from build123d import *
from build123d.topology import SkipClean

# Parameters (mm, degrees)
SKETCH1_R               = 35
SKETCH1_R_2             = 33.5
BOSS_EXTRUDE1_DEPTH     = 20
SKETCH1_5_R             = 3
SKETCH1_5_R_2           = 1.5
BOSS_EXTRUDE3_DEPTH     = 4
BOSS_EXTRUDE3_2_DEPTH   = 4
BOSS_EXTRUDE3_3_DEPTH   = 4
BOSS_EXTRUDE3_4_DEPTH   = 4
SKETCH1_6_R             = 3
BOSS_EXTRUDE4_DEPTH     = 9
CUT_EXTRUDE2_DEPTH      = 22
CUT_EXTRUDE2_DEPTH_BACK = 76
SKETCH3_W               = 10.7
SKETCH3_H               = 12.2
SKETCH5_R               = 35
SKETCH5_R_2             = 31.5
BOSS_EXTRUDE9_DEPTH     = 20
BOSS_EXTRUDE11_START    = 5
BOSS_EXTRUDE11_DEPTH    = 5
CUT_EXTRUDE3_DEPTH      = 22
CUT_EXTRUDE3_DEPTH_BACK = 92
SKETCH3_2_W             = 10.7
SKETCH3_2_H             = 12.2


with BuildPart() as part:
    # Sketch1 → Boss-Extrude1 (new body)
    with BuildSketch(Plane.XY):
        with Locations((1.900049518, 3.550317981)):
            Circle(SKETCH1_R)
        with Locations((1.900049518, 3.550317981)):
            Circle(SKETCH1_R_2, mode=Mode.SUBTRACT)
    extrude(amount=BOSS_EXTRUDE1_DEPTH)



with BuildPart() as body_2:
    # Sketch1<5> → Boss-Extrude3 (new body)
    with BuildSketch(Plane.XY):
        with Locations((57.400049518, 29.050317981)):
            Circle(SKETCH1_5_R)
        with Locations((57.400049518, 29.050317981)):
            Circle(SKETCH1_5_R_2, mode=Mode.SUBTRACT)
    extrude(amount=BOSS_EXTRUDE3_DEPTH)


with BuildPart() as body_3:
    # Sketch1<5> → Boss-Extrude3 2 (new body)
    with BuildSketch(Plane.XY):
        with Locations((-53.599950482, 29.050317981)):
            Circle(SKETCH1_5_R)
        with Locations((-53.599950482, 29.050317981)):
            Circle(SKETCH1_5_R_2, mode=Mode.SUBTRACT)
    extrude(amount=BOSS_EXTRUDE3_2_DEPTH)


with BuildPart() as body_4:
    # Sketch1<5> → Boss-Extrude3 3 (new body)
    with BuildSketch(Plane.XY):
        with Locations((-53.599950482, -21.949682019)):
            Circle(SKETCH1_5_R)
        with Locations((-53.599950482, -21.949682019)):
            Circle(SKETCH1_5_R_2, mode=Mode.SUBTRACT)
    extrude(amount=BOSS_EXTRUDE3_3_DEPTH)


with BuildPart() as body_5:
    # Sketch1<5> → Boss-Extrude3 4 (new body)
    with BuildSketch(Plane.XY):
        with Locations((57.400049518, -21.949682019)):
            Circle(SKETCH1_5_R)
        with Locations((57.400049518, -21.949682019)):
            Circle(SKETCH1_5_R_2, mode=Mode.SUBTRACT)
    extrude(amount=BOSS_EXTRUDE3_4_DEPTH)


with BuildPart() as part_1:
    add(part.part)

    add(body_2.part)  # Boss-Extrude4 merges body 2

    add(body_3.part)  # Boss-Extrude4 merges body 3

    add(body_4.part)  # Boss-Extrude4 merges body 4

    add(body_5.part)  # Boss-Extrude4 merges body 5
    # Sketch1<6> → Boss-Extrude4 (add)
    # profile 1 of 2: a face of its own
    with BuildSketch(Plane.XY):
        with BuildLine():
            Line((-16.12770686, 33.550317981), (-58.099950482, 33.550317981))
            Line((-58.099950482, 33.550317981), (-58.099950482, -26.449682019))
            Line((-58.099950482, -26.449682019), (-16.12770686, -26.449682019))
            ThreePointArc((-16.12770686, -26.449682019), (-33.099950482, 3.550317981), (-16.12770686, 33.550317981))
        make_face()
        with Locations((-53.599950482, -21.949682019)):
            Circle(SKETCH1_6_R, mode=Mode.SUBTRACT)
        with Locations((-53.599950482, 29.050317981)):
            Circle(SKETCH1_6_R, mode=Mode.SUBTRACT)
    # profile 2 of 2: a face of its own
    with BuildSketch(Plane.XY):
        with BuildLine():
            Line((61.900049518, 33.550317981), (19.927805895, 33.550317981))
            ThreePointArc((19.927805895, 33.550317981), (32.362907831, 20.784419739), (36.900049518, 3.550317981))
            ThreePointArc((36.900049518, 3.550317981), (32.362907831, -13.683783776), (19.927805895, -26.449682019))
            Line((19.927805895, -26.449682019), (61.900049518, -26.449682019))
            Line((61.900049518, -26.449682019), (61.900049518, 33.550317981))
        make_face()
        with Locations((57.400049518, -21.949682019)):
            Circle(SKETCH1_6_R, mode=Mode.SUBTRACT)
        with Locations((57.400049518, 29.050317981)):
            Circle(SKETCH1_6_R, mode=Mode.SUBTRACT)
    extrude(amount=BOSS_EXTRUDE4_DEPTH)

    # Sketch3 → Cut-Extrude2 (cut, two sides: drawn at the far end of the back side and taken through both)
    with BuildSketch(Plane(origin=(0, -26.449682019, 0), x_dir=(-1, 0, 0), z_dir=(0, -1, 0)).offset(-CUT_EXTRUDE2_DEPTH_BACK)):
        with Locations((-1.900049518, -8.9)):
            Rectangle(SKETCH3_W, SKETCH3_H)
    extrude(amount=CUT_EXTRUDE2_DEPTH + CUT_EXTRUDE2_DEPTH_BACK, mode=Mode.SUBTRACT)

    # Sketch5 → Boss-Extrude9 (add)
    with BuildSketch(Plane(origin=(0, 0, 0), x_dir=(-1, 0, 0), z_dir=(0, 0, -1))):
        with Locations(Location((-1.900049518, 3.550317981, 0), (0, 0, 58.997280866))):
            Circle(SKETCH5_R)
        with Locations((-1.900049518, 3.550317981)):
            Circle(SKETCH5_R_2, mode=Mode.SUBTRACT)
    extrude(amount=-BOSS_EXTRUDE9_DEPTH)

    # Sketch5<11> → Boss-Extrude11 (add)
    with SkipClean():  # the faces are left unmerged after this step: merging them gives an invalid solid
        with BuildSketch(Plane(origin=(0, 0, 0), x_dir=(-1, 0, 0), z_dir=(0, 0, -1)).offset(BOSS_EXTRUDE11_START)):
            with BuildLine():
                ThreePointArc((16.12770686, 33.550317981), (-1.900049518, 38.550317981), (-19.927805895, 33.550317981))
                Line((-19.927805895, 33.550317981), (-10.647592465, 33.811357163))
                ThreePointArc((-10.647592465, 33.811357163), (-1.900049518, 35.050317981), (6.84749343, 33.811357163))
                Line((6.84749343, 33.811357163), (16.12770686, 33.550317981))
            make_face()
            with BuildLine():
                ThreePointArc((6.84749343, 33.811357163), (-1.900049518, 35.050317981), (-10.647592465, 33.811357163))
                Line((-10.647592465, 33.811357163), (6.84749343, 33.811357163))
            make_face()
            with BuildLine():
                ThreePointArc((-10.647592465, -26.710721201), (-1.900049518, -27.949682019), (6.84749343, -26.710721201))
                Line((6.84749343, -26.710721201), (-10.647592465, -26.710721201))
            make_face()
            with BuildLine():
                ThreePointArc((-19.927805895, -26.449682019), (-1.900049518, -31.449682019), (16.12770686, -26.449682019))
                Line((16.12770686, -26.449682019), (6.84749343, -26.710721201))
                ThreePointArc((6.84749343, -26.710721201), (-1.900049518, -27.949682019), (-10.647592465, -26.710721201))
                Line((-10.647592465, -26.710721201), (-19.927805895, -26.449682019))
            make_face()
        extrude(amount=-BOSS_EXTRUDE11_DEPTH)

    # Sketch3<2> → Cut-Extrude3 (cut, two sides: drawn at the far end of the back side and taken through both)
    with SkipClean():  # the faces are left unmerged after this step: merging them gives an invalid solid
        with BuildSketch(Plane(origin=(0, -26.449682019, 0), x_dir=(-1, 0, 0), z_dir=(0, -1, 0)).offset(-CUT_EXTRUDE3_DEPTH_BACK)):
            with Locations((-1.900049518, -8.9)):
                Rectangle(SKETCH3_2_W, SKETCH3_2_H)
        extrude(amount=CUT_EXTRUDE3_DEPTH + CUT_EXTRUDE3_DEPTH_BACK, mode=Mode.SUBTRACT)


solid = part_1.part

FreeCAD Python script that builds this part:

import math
import FreeCAD as App
import Part
import Sketcher

V = App.Vector


def add_polygon(sketch, points):
    """Adds a closed chain of lines whose ends are joined by coincident constraints."""
    first, n = sketch.GeometryCount, len(points)
    for a, b in zip(points, points[1:] + points[:1]):
        sketch.addGeometry(Part.LineSegment(App.Vector(*a, 0), App.Vector(*b, 0)), False)
    for i in range(n):
        sketch.addConstraint(Sketcher.Constraint("Coincident", first + i, 2, first + (i + 1) % n, 1))

doc = App.newDocument("Part")
params = doc.addObject("Spreadsheet::Sheet", "Params")
for row, (alias, value) in enumerate([
    ("sketch1_diameter", "70 mm"),
    ("sketch1_diameter2", "67 mm"),
    ("pad1_length", "20 mm"),
    ("sketch2_diameter", "6 mm"),
    ("sketch2_diameter2", "3 mm"),
    ("pad2_length", "4 mm"),
    ("sketch3_diameter", "6 mm"),
    ("sketch3_diameter2", "3 mm"),
    ("pad3_length", "4 mm"),
    ("sketch4_diameter", "6 mm"),
    ("sketch4_diameter2", "3 mm"),
    ("pad4_length", "4 mm"),
    ("sketch5_diameter", "6 mm"),
    ("sketch5_diameter2", "3 mm"),
    ("pad5_length", "4 mm"),
    ("sketch6_diameter", "6 mm"),
    ("sketch6_radius", "35 mm"),
    ("sketch6_height", "60 mm"),
    ("pad6_length", "9 mm"),
    ("sketch7_width", "10.7 mm"),
    ("sketch7_height", "12.2 mm"),
    ("sketch8_diameter", "70 mm"),
    ("sketch8_diameter2", "63 mm"),
    ("pad7_length", "20 mm"),
    ("sketch9_radius", "35 mm"),
    ("sketch9_radius2", "31.5 mm"),
    ("pad8_length", "5 mm"),
    ("sketch10_width", "10.7 mm"),
    ("sketch10_height", "12.2 mm"),
], start=1):
    params.set(f"A{row}", alias)
    params.set(f"B{row}", "=" + value)
    params.setAlias(f"B{row}", alias)

body = doc.addObject("PartDesign::Body", "Body")

sketch1 = doc.addObject("Sketcher::SketchObject", "Sketch")
body.addObject(sketch1)
sketch1.AttachmentSupport = (doc.XY_Plane, [""])
sketch1.MapMode = "FlatFace"
sketch1.addGeometry(Part.Circle(V(2, 4, 0), V(0, 0, 1), 35), False)
sketch1.addGeometry(Part.Circle(V(2, 4, 0), V(0, 0, 1), 34), False)
sketch1.addConstraint(Sketcher.Constraint("Coincident", 1, 3, 0, 3))
sketch1.addConstraint(Sketcher.Constraint("Diameter", 0, 70.0))
sketch1.addConstraint(Sketcher.Constraint("Diameter", 1, 67.0))
sketch1.addConstraint(Sketcher.Constraint("DistanceX", -1, 1, 0, 3, 1.90005))
sketch1.addConstraint(Sketcher.Constraint("DistanceY", -1, 1, 0, 3, 3.550318))
sketch1.setExpression("Constraints[1]", "Params.sketch1_diameter")
sketch1.setExpression("Constraints[2]", "Params.sketch1_diameter2")
pad1 = doc.addObject("PartDesign::Pad", "Pad")
body.addObject(pad1)
pad1.Profile = sketch1
pad1.setExpression("Length", "Params.pad1_length")
body2 = doc.addObject("PartDesign::Body", "Body001")

sketch2 = doc.addObject("Sketcher::SketchObject", "Sketch001")
body2.addObject(sketch2)
sketch2.AttachmentSupport = (doc.getObject("XY_Plane001"), [""])
sketch2.MapMode = "FlatFace"
sketch2.addGeometry(Part.Circle(V(57.4, 29.1, 0), V(0, 0, 1), 3), False)
sketch2.addGeometry(Part.Circle(V(57.4, 29.1, 0), V(0, 0, 1), 1.5), False)
sketch2.addConstraint(Sketcher.Constraint("Coincident", 1, 3, 0, 3))
sketch2.addConstraint(Sketcher.Constraint("Diameter", 0, 6.0))
sketch2.addConstraint(Sketcher.Constraint("Diameter", 1, 3.0))
sketch2.addConstraint(Sketcher.Constraint("DistanceX", -1, 1, 0, 3, 57.40005))
sketch2.addConstraint(Sketcher.Constraint("DistanceY", -1, 1, 0, 3, 29.050318))
sketch2.setExpression("Constraints[1]", "Params.sketch2_diameter")
sketch2.setExpression("Constraints[2]", "Params.sketch2_diameter2")
pad2 = doc.addObject("PartDesign::Pad", "Pad001")
body2.addObject(pad2)
pad2.Profile = sketch2
pad2.setExpression("Length", "Params.pad2_length")
body3 = doc.addObject("PartDesign::Body", "Body002")

sketch3 = doc.addObject("Sketcher::SketchObject", "Sketch002")
body3.addObject(sketch3)
sketch3.AttachmentSupport = (doc.getObject("XY_Plane002"), [""])
sketch3.MapMode = "FlatFace"
sketch3.addGeometry(Part.Circle(V(-53.6, 29.1, 0), V(0, 0, 1), 3), False)
sketch3.addGeometry(Part.Circle(V(-53.6, 29.1, 0), V(0, 0, 1), 1.5), False)
sketch3.addConstraint(Sketcher.Constraint("Coincident", 1, 3, 0, 3))
sketch3.addConstraint(Sketcher.Constraint("Diameter", 0, 6.0))
sketch3.addConstraint(Sketcher.Constraint("Diameter", 1, 3.0))
sketch3.addConstraint(Sketcher.Constraint("DistanceX", 0, 3, -1, 1, 53.59995))
sketch3.addConstraint(Sketcher.Constraint("DistanceY", -1, 1, 0, 3, 29.050318))
sketch3.setExpression("Constraints[1]", "Params.sketch3_diameter")
sketch3.setExpression("Constraints[2]", "Params.sketch3_diameter2")
pad3 = doc.addObject("PartDesign::Pad", "Pad002")
body3.addObject(pad3)
pad3.Profile = sketch3
pad3.setExpression("Length", "Params.pad3_length")
body4 = doc.addObject("PartDesign::Body", "Body003")

sketch4 = doc.addObject("Sketcher::SketchObject", "Sketch003")
body4.addObject(sketch4)
sketch4.AttachmentSupport = (doc.getObject("XY_Plane003"), [""])
sketch4.MapMode = "FlatFace"
sketch4.addGeometry(Part.Circle(V(-53.6, -21.9, 0), V(0, 0, 1), 3), False)
sketch4.addGeometry(Part.Circle(V(-53.6, -21.9, 0), V(0, 0, 1), 1.5), False)
sketch4.addConstraint(Sketcher.Constraint("Coincident", 1, 3, 0, 3))
sketch4.addConstraint(Sketcher.Constraint("Diameter", 0, 6.0))
sketch4.addConstraint(Sketcher.Constraint("Diameter", 1, 3.0))
sketch4.addConstraint(Sketcher.Constraint("DistanceX", 0, 3, -1, 1, 53.59995))
sketch4.addConstraint(Sketcher.Constraint("DistanceY", 0, 3, -1, 1, 21.949682))
sketch4.setExpression("Constraints[1]", "Params.sketch4_diameter")
sketch4.setExpression("Constraints[2]", "Params.sketch4_diameter2")
pad4 = doc.addObject("PartDesign::Pad", "Pad003")
body4.addObject(pad4)
pad4.Profile = sketch4
pad4.setExpression("Length", "Params.pad4_length")
body5 = doc.addObject("PartDesign::Body", "Body004")

sketch5 = doc.addObject("Sketcher::SketchObject", "Sketch004")
body5.addObject(sketch5)
sketch5.AttachmentSupport = (doc.getObject("XY_Plane004"), [""])
sketch5.MapMode = "FlatFace"
sketch5.addGeometry(Part.Circle(V(57.4, -21.9, 0), V(0, 0, 1), 3), False)
sketch5.addGeometry(Part.Circle(V(57.4, -21.9, 0), V(0, 0, 1), 1.5), False)
sketch5.addConstraint(Sketcher.Constraint("Coincident", 1, 3, 0, 3))
sketch5.addConstraint(Sketcher.Constraint("Diameter", 0, 6.0))
sketch5.addConstraint(Sketcher.Constraint("Diameter", 1, 3.0))
sketch5.addConstraint(Sketcher.Constraint("DistanceX", -1, 1, 0, 3, 57.40005))
sketch5.addConstraint(Sketcher.Constraint("DistanceY", 0, 3, -1, 1, 21.949682))
sketch5.setExpression("Constraints[1]", "Params.sketch5_diameter")
sketch5.setExpression("Constraints[2]", "Params.sketch5_diameter2")
pad5 = doc.addObject("PartDesign::Pad", "Pad004")
body5.addObject(pad5)
pad5.Profile = sketch5
pad5.setExpression("Length", "Params.pad5_length")
body.AllowCompound = True
doc.recompute()

boolean = doc.addObject("PartDesign::Boolean", "Boolean")
body.addObject(boolean)
boolean.Type = "Fuse"
boolean.addObjects([body2])
doc.recompute()

boolean2 = doc.addObject("PartDesign::Boolean", "Boolean001")
body.addObject(boolean2)
boolean2.Type = "Fuse"
boolean2.addObjects([body3])
doc.recompute()

boolean3 = doc.addObject("PartDesign::Boolean", "Boolean002")
body.addObject(boolean3)
boolean3.Type = "Fuse"
boolean3.addObjects([body4])
doc.recompute()

boolean4 = doc.addObject("PartDesign::Boolean", "Boolean003")
body.addObject(boolean4)
boolean4.Type = "Fuse"
boolean4.addObjects([body5])

sketch6 = doc.addObject("Sketcher::SketchObject", "Sketch005")
body.addObject(sketch6)
sketch6.AttachmentSupport = (doc.XY_Plane, [""])
sketch6.MapMode = "FlatFace"
sketch6.addGeometry(Part.LineSegment(V(-16.1, 33.6, 0), V(-58.1, 33.6, 0)), False)
sketch6.addGeometry(Part.LineSegment(V(-58.1, 33.6, 0), V(-58.1, -26.4, 0)), False)
sketch6.addGeometry(Part.LineSegment(V(-58.1, -26.4, 0), V(-16.1, -26.4, 0)), False)
sketch6.addGeometry(Part.ArcOfCircle(Part.Circle(V(1.9, 3.6, 0), V(0, 0, 1), 35), math.radians(121), math.radians(239)), False)
sketch6.addGeometry(Part.Circle(V(-53.6, -21.9, 0), V(0, 0, 1), 3), False)
sketch6.addGeometry(Part.Circle(V(-53.6, 29.1, 0), V(0, 0, 1), 3), False)
sketch6.addGeometry(Part.LineSegment(V(61.9, 33.6, 0), V(19.9, 33.6, 0)), False)
sketch6.addGeometry(Part.ArcOfCircle(Part.Circle(V(1.9, 3.6, 0), V(0, 0, 1), 35), math.radians(0), math.radians(59)), False)
sketch6.addGeometry(Part.ArcOfCircle(Part.Circle(V(1.9, 3.6, 0), V(0, 0, 1), 35), math.radians(-59), math.radians(0)), False)
sketch6.addGeometry(Part.LineSegment(V(19.9, -26.4, 0), V(61.9, -26.4, 0)), False)
sketch6.addGeometry(Part.LineSegment(V(61.9, -26.4, 0), V(61.9, 33.6, 0)), False)
sketch6.addGeometry(Part.Circle(V(57.4, -21.9, 0), V(0, 0, 1), 3), False)
sketch6.addGeometry(Part.Circle(V(57.4, 29.1, 0), V(0, 0, 1), 3), False)
sketch6.addConstraint(Sketcher.Constraint("Coincident", 0, 2, 1, 1))
sketch6.addConstraint(Sketcher.Constraint("Coincident", 1, 2, 2, 1))
sketch6.addConstraint(Sketcher.Constraint("Coincident", 2, 2, 3, 2))
sketch6.addConstraint(Sketcher.Constraint("Coincident", 3, 1, 0, 1))
sketch6.addConstraint(Sketcher.Constraint("Coincident", 6, 2, 7, 2))
sketch6.addConstraint(Sketcher.Constraint("Tangent", 7, 1, 8, 2))
sketch6.addConstraint(Sketcher.Constraint("Coincident", 8, 1, 9, 1))
sketch6.addConstraint(Sketcher.Constraint("Coincident", 9, 2, 10, 1))
sketch6.addConstraint(Sketcher.Constraint("Coincident", 10, 2, 6, 1))
sketch6.addConstraint(Sketcher.Constraint("Horizontal", 0))
sketch6.addConstraint(Sketcher.Constraint("Vertical", 1))
sketch6.addConstraint(Sketcher.Constraint("Horizontal", 2))
sketch6.addConstraint(Sketcher.Constraint("Horizontal", 6))
sketch6.addConstraint(Sketcher.Constraint("Horizontal", 9))
sketch6.addConstraint(Sketcher.Constraint("Vertical", 10))
sketch6.addConstraint(Sketcher.Constraint("Coincident", 7, 3, 3, 3))
sketch6.addConstraint(Sketcher.Constraint("Equal", 4, 5))
sketch6.addConstraint(Sketcher.Constraint("Equal", 3, 7))
sketch6.addConstraint(Sketcher.Constraint("Equal", 7, 8))
sketch6.addConstraint(Sketcher.Constraint("Equal", 5, 11))
sketch6.addConstraint(Sketcher.Constraint("Equal", 11, 12))
sketch6.addConstraint(Sketcher.Constraint("Horizontal", 4, 3, 11, 3))
sketch6.addConstraint(Sketcher.Constraint("Horizontal", 5, 3, 12, 3))
sketch6.addConstraint(Sketcher.Constraint("Horizontal", 3, 1, 6, 2))
sketch6.addConstraint(Sketcher.Constraint("Horizontal", 8, 3, 7, 1))
sketch6.addConstraint(Sketcher.Constraint("Horizontal", 2, 2, 8, 1))
sketch6.addConstraint(Sketcher.Constraint("Vertical", 4, 3, 5, 3))
sketch6.addConstraint(Sketcher.Constraint("Vertical", 11, 3, 12, 3))
sketch6.addConstraint(Sketcher.Constraint("Vertical", 2, 2, 3, 1))
sketch6.addConstraint(Sketcher.Constraint("Equal", 2, 6))
sketch6.addConstraint(Sketcher.Constraint("Diameter", 4, 6.0))
sketch6.addConstraint(Sketcher.Constraint("Radius", 3, 35.0))
sketch6.addConstraint(Sketcher.Constraint("DistanceY", 1, 2, 1, 1, 60.0))
sketch6.addConstraint(Sketcher.Constraint("DistanceY", 4, 3, 5, 3, 51.0))
sketch6.addConstraint(Sketcher.Constraint("DistanceX", 4, 3, 11, 3, 111.0))
sketch6.addConstraint(Sketcher.Constraint("DistanceX", 0, 2, 8, 3, 60.0))
sketch6.addConstraint(Sketcher.Constraint("DistanceX", 4, 3, 3, 3, 55.5))
sketch6.addConstraint(Sketcher.Constraint("DistanceY", 4, 3, 3, 3, 25.5))
sketch6.addConstraint(Sketcher.Constraint("DistanceX", -1, 1, 3, 3, 1.90005))
sketch6.addConstraint(Sketcher.Constraint("DistanceY", -1, 1, 3, 3, 3.550318))
sketch6.setExpression("Constraints[30]", "Params.sketch6_diameter")
sketch6.setExpression("Constraints[31]", "Params.sketch6_radius")
sketch6.setExpression("Constraints[32]", "Params.sketch6_height")
pad6 = doc.addObject("PartDesign::Pad", "Pad005")
body.addObject(pad6)
pad6.Profile = sketch6
pad6.setExpression("Length", "Params.pad6_length")

sketch7 = doc.addObject("Sketcher::SketchObject", "Sketch006")
body.addObject(sketch7)
sketch7.AttachmentSupport = (doc.XZ_Plane, [""])
sketch7.MapMode = "FlatFace"
sketch7.AttachmentOffset = App.Placement(V(0, 0, 26.449682), App.Rotation())
add_polygon(sketch7, [(7, 3), (7, 15), (-3, 15), (-3, 3)])
sketch7.addConstraint(Sketcher.Constraint("Vertical", 0))
sketch7.addConstraint(Sketcher.Constraint("Horizontal", 1))
sketch7.addConstraint(Sketcher.Constraint("Vertical", 2))
sketch7.addConstraint(Sketcher.Constraint("Horizontal", 3))
sketch7.addConstraint(Sketcher.Constraint("DistanceX", 1, 2, 1, 1, 10.7))
sketch7.addConstraint(Sketcher.Constraint("DistanceY", 0, 1, 0, 2, 12.2))
sketch7.addConstraint(Sketcher.Constraint("DistanceY", -1, 1, 0, 2, 15.0))
sketch7.addConstraint(Sketcher.Constraint("DistanceX", -1, 1, 0, 2, 7.25005))
sketch7.setExpression("Constraints[8]", "Params.sketch7_width")
sketch7.setExpression("Constraints[9]", "Params.sketch7_height")
pocket1 = doc.addObject("PartDesign::Pocket", "Pocket")
body.addObject(pocket1)
pocket1.Profile = sketch7
pocket1.Type = "ThroughAll"
pocket1.Midplane = True

sketch8 = doc.addObject("Sketcher::SketchObject", "Sketch007")
body.addObject(sketch8)
sketch8.AttachmentSupport = (doc.XY_Plane, [""])
sketch8.MapMode = "FlatFace"
sketch8.addGeometry(Part.Circle(V(2, 4, 0), V(0, 0, 1), 35), False)
sketch8.addGeometry(Part.Circle(V(2, 4, 0), V(0, 0, 1), 32), False)
sketch8.addConstraint(Sketcher.Constraint("Coincident", 1, 3, 0, 3))
sketch8.addConstraint(Sketcher.Constraint("Diameter", 0, 70.0))
sketch8.addConstraint(Sketcher.Constraint("Diameter", 1, 63.0))
sketch8.addConstraint(Sketcher.Constraint("DistanceX", -1, 1, 0, 3, 1.90005))
sketch8.addConstraint(Sketcher.Constraint("DistanceY", -1, 1, 0, 3, 3.550318))
sketch8.setExpression("Constraints[1]", "Params.sketch8_diameter")
sketch8.setExpression("Constraints[2]", "Params.sketch8_diameter2")
pad7 = doc.addObject("PartDesign::Pad", "Pad006")
body.addObject(pad7)
pad7.Profile = sketch8
pad7.setExpression("Length", "Params.pad7_length")

sketch9 = doc.addObject("Sketcher::SketchObject", "Sketch008")
body.addObject(sketch9)
sketch9.AttachmentSupport = (doc.XY_Plane, [""])
sketch9.MapMode = "FlatFace"
sketch9.AttachmentOffset = App.Placement(V(0, 0, -5), App.Rotation())
sketch9.addGeometry(Part.ArcOfCircle(Part.Circle(V(2, 4, 0), V(0, 0, 1), 35), math.radians(59), math.radians(121)), False)
sketch9.addGeometry(Part.LineSegment(V(20, 34, 0), V(11, 34, 0)), False)
sketch9.addGeometry(Part.ArcOfCircle(Part.Circle(V(2, 4, 0), V(0, 0, 1), 31), math.radians(74), math.radians(106)), False)
sketch9.addGeometry(Part.LineSegment(V(-7, 34, 0), V(-16, 34, 0)), False)
sketch9.addGeometry(Part.ArcOfCircle(Part.Circle(V(2, 4, 0), V(0, 0, 1), 31), math.radians(74), math.radians(106)), False)
sketch9.addGeometry(Part.LineSegment(V(11, 34, 0), V(-7, 34, 0)), False)
sketch9.addGeometry(Part.ArcOfCircle(Part.Circle(V(2, 4, 0), V(0, 0, 1), 31), math.radians(-106), math.radians(-74)), False)
sketch9.addGeometry(Part.LineSegment(V(-7, -27, 0), V(11, -27, 0)), False)
sketch9.addGeometry(Part.ArcOfCircle(Part.Circle(V(2, 4, 0), V(0, 0, 1), 35), math.radians(-121), math.radians(-59)), False)
sketch9.addGeometry(Part.LineSegment(V(-16, -26, 0), V(-7, -27, 0)), False)
sketch9.addGeometry(Part.ArcOfCircle(Part.Circle(V(2, 4, 0), V(0, 0, 1), 31), math.radians(-106), math.radians(-74)), False)
sketch9.addGeometry(Part.LineSegment(V(11, -27, 0), V(20, -26, 0)), False)
sketch9.addConstraint(Sketcher.Constraint("Coincident", 0, 1, 1, 1))
sketch9.addConstraint(Sketcher.Constraint("Coincident", 1, 2, 2, 1))
sketch9.addConstraint(Sketcher.Constraint("Coincident", 2, 2, 3, 1))
sketch9.addConstraint(Sketcher.Constraint("Coincident", 3, 2, 0, 2))
sketch9.addConstraint(Sketcher.Constraint("Coincident", 4, 1, 5, 1))
sketch9.addConstraint(Sketcher.Constraint("Coincident", 5, 2, 4, 2))
sketch9.addConstraint(Sketcher.Constraint("Coincident", 6, 1, 7, 1))
sketch9.addConstraint(Sketcher.Constraint("Coincident", 7, 2, 6, 2))
sketch9.addConstraint(Sketcher.Constraint("Coincident", 8, 1, 9, 1))
sketch9.addConstraint(Sketcher.Constraint("Coincident", 9, 2, 10, 1))
sketch9.addConstraint(Sketcher.Constraint("Coincident", 10, 2, 11, 1))
sketch9.addConstraint(Sketcher.Constraint("Coincident", 11, 2, 8, 2))
sketch9.addConstraint(Sketcher.Constraint("Horizontal", 5))
sketch9.addConstraint(Sketcher.Constraint("Horizontal", 7))
sketch9.addConstraint(Sketcher.Constraint("Coincident", 2, 3, 0, 3))
sketch9.addConstraint(Sketcher.Constraint("Coincident", 4, 3, 0, 3))
sketch9.addConstraint(Sketcher.Constraint("Coincident", 6, 3, 0, 3))
sketch9.addConstraint(Sketcher.Constraint("Coincident", 8, 3, 0, 3))
sketch9.addConstraint(Sketcher.Constraint("Coincident", 10, 3, 0, 3))
sketch9.addConstraint(Sketcher.Constraint("Coincident", 4, 1, 1, 2))
sketch9.addConstraint(Sketcher.Constraint("Coincident", 9, 2, 6, 1))
sketch9.addConstraint(Sketcher.Constraint("Equal", 4, 6))
sketch9.addConstraint(Sketcher.Constraint("Equal", 0, 8))
sketch9.addConstraint(Sketcher.Constraint("Parallel", 1, 9))
sketch9.addConstraint(Sketcher.Constraint("Parallel", 3, 11))
sketch9.addConstraint(Sketcher.Constraint("Horizontal", 1, 2, 2, 2))
sketch9.addConstraint(Sketcher.Constraint("Horizontal", 0, 1, 3, 2))
sketch9.addConstraint(Sketcher.Constraint("Horizontal", 9, 2, 10, 2))
sketch9.addConstraint(Sketcher.Constraint("Vertical", 5, 2, 6, 1))
sketch9.addConstraint(Sketcher.Constraint("Radius", 0, 35.0))
sketch9.addConstraint(Sketcher.Constraint("Radius", 2, 31.5))
sketch9.addConstraint(Sketcher.Constraint("DistanceY", 2, 3, 0, 1, 30.0))
sketch9.addConstraint(Sketcher.Constraint("DistanceX", 2, 2, 0, 1, 26.775299))
sketch9.addConstraint(Sketcher.Constraint("DistanceX", -1, 1, 0, 3, 1.90005))
sketch9.addConstraint(Sketcher.Constraint("DistanceY", 6, 1, -1, 1, 26.710721))
sketch9.setExpression("Constraints[29]", "Params.sketch9_radius")
sketch9.setExpression("Constraints[30]", "Params.sketch9_radius2")
pad8 = doc.addObject("PartDesign::Pad", "Pad007")
body.addObject(pad8)
pad8.Profile = sketch9
pad8.setExpression("Length", "Params.pad8_length")

sketch10 = doc.addObject("Sketcher::SketchObject", "Sketch009")
body.addObject(sketch10)
sketch10.AttachmentSupport = (doc.XZ_Plane, [""])
sketch10.MapMode = "FlatFace"
sketch10.AttachmentOffset = App.Placement(V(0, 0, 26.449682), App.Rotation())
add_polygon(sketch10, [(7, 3), (7, 15), (-3, 15), (-3, 3)])
sketch10.addConstraint(Sketcher.Constraint("Vertical", 0))
sketch10.addConstraint(Sketcher.Constraint("Horizontal", 1))
sketch10.addConstraint(Sketcher.Constraint("Vertical", 2))
sketch10.addConstraint(Sketcher.Constraint("Horizontal", 3))
sketch10.addConstraint(Sketcher.Constraint("DistanceX", 1, 2, 1, 1, 10.7))
sketch10.addConstraint(Sketcher.Constraint("DistanceY", 0, 1, 0, 2, 12.2))
sketch10.addConstraint(Sketcher.Constraint("DistanceY", -1, 1, 0, 2, 15.0))
sketch10.addConstraint(Sketcher.Constraint("DistanceX", -1, 1, 0, 2, 7.25005))
sketch10.setExpression("Constraints[8]", "Params.sketch10_width")
sketch10.setExpression("Constraints[9]", "Params.sketch10_height")
pocket2 = doc.addObject("PartDesign::Pocket", "Pocket001")
body.addObject(pocket2)
pocket2.Profile = sketch10
pocket2.Type = "ThroughAll"
pocket2.Midplane = True

doc.recompute()
